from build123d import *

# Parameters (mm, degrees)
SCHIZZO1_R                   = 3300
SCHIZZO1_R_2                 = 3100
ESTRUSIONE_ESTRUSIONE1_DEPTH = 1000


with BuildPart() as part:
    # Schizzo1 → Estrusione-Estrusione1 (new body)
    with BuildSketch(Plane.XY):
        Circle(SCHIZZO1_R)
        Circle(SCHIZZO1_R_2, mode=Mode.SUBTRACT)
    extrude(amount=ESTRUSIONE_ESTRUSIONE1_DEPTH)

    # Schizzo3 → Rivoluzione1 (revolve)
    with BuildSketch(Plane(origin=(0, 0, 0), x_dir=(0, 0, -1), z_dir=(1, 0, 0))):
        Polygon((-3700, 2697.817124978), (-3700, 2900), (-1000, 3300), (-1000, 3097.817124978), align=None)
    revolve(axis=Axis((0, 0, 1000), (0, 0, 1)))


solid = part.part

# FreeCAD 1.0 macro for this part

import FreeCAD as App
import Part
import Sketcher


def add_polygon(sketch, points):
    """Adds a closed chain of lines whose ends are joined by coincident constraints."""
    first, n = sketch.GeometryCount, len(points)
    for a, b in zip(points, points[1:] + points[:1]):
        sketch.addGeometry(Part.LineSegment(App.Vector(*a, 0), App.Vector(*b, 0)), False)
    for i in range(n):
        sketch.addConstraint(Sketcher.Constraint("Coincident", first + i, 2, first + (i + 1) % n, 1))

doc = App.newDocument("Part")
params = doc.addObject("Spreadsheet::Sheet", "Params")
for row, (alias, value) in enumerate([
    ("sketch1_diameter", "6600 mm"),
    ("sketch1_diameter2", "6200 mm"),
    ("pad1_length", "1000 mm"),
    ("revolution_angle", "360 deg"),
], start=1):
    params.set(f"A{row}", alias)
    params.set(f"B{row}", "=" + value)
    params.setAlias(f"B{row}", alias)

body = doc.addObject("PartDesign::Body", "Body")

# Sketch on XY plane
sketch1 = body.newObject("Sketcher::SketchObject", "Sketch")
sketch1.AttachmentSupport = (doc.getObject("XY_Plane"), [""])
sketch1.MapMode = "FlatFace"
sketch1.addGeometry([
    Part.Circle(App.Vector(0, 0, 0), App.Vector(0, 0, 1), 3300),
    Part.Circle(App.Vector(0, 0, 0), App.Vector(0, 0, 1), 3100),
], False)
sketch1.addConstraint([
    Sketcher.Constraint("Coincident", 0, 3, -1, 1),
    Sketcher.Constraint("Coincident", 1, 3, -1, 1),
    Sketcher.Constraint("Diameter", 0, 6600.0),
    Sketcher.Constraint("Diameter", 1, 6200.0),
])
sketch1.setExpression("Constraints[2]", "Params.sketch1_diameter")
sketch1.setExpression("Constraints[3]", "Params.sketch1_diameter2")
pad1 = body.newObject("PartDesign::Pad", "Pad")
pad1.Profile = sketch1
pad1.setExpression("Length", "Params.pad1_length")

# Sketch on YZ plane
sketch2 = body.newObject("Sketcher::SketchObject", "Sketch001")
sketch2.AttachmentSupport = (doc.getObject("YZ_Plane"), [""])
sketch2.MapMode = "FlatFace"
add_polygon(sketch2, [(2900, 3700), (2697.817125, 3700), (3097.817125, 1000), (3300, 1000)])  # lines 0-3
sketch2.addConstraint([
    Sketcher.Constraint("Horizontal", 0),
    Sketcher.Constraint("Horizontal", 2),
    Sketcher.Constraint("Parallel", 1, 3),
    Sketcher.Constraint("DistanceY", -1, 1, 0, 2, 3700.0),
    Sketcher.Constraint("DistanceY", -1, 1, 1, 2, 1000.0),
    Sketcher.Constraint("DistanceX", -1, 1, 2, 2, 3300.0),
    Sketcher.Constraint("DistanceX", -1, 1, 3, 2, 2900.0),
    Sketcher.Constraint("DistanceX", 0, 2, 0, 1, 202.182875),
])
revolution = body.newObject("PartDesign::Revolution", "Revolution")
revolution.Profile = sketch2
revolution.ReferenceAxis = (sketch2, ["V_Axis"])
revolution.setExpression("Angle", "Params.revolution_angle")

doc.recompute()
